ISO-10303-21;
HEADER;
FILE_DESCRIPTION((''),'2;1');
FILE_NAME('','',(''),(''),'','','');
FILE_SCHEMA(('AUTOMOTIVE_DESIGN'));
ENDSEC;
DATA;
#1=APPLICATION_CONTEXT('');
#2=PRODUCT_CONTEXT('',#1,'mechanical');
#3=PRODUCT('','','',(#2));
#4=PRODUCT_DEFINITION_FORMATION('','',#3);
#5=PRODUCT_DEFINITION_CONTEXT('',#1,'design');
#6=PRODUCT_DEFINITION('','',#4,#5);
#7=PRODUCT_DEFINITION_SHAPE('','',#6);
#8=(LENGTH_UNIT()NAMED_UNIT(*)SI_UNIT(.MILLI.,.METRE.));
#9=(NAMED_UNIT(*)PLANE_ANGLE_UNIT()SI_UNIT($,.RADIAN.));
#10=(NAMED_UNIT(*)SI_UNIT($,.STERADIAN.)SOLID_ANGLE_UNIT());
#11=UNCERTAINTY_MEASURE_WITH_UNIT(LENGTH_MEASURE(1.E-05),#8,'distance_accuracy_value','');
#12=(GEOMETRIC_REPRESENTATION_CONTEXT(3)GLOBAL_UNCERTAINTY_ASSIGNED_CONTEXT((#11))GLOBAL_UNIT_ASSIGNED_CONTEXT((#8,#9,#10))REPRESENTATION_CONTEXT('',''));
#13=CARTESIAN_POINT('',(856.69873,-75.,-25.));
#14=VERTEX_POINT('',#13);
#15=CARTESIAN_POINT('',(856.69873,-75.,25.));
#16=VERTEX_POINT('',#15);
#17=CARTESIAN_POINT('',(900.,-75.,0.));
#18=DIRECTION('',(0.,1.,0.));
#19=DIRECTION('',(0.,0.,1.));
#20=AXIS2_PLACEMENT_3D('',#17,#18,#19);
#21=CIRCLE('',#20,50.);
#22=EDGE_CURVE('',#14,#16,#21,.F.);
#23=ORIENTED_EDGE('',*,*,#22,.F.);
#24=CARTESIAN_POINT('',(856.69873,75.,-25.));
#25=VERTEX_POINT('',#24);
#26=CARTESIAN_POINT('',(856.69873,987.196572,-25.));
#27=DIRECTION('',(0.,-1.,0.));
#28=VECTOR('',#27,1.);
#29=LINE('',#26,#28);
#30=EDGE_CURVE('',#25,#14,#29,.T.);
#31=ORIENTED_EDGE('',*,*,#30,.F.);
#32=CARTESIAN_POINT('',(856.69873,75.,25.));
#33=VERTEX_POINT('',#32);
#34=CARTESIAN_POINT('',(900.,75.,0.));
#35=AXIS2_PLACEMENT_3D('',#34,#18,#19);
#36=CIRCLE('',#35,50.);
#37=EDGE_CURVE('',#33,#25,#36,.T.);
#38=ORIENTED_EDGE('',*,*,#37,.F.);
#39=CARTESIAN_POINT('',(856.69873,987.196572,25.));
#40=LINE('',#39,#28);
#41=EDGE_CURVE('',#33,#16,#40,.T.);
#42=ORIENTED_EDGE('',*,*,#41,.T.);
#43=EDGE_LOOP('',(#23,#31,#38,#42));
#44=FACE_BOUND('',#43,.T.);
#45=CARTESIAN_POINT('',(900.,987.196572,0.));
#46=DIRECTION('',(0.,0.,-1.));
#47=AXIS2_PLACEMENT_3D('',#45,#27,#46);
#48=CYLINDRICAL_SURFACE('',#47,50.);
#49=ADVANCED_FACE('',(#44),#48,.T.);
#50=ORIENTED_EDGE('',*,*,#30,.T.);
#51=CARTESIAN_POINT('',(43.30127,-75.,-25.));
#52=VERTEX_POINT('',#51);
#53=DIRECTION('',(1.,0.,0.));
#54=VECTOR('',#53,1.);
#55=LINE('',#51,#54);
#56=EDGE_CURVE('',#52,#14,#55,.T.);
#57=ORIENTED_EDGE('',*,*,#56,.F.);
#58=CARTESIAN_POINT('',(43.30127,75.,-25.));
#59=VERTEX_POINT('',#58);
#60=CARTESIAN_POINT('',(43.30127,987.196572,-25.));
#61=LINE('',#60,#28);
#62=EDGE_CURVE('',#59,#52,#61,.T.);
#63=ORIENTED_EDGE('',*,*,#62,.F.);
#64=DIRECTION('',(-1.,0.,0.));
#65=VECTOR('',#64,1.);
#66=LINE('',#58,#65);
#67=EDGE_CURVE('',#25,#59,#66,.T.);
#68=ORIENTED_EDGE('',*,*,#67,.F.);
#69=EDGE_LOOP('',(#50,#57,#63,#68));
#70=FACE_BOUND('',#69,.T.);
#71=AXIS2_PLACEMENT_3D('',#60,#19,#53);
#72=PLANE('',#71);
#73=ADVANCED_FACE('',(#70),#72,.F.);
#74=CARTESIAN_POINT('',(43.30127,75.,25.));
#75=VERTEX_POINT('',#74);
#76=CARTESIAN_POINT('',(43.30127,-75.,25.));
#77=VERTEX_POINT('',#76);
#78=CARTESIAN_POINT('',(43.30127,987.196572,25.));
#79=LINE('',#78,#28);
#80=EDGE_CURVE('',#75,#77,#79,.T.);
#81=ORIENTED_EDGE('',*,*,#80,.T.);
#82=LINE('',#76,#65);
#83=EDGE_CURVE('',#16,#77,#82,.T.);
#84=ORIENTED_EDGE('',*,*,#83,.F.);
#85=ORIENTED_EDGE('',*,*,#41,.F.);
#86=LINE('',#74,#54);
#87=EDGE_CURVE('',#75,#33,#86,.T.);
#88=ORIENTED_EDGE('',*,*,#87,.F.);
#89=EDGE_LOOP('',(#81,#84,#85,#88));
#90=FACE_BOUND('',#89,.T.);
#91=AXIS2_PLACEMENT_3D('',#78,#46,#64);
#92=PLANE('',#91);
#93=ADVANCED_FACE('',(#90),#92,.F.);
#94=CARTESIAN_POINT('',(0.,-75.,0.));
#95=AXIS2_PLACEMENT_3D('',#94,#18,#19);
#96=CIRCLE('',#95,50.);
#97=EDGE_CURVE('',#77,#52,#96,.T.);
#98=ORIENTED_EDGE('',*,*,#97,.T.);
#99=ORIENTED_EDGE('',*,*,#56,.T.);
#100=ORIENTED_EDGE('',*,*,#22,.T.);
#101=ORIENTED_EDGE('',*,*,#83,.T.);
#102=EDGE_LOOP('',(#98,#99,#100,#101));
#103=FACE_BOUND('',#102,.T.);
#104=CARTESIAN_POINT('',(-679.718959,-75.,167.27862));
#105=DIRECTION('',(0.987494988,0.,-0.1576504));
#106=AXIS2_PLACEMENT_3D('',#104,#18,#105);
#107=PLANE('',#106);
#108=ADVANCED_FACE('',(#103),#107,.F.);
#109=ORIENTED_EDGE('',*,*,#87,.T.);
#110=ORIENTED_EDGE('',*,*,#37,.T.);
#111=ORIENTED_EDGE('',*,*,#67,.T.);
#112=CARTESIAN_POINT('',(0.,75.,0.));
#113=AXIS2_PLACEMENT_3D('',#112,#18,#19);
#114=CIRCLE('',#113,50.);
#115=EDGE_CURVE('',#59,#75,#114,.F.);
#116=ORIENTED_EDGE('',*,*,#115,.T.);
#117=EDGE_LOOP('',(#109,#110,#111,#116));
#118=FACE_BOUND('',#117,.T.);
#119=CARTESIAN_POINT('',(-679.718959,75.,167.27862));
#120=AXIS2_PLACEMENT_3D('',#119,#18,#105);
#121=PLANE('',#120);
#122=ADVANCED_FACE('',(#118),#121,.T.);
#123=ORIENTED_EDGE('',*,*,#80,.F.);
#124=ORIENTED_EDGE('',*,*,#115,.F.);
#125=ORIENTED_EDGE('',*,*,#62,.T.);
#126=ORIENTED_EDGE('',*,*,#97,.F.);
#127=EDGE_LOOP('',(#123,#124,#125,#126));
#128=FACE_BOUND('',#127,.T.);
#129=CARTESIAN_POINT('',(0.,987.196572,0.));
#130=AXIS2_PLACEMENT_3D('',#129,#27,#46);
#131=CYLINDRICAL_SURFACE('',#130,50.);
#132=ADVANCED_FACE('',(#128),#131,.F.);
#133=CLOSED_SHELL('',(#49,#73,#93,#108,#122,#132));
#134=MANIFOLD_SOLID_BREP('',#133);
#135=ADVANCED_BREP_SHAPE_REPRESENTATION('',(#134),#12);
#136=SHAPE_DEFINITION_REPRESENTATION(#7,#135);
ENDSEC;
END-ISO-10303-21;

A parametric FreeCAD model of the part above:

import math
import FreeCAD as App
import Part
import Sketcher
from FreeCAD import Vector

doc = App.newDocument("Part")
body = doc.addObject("PartDesign::Body", "Body")

sketch1 = doc.addObject("Sketcher::SketchObject", "Sketch")
body.addObject(sketch1)
sketch1.AttachmentSupport = (doc.XZ_Plane, [""])
sketch1.MapMode = "FlatFace"
sketch1.addGeometry([
    Part.LineSegment(Vector(43, 25, 0), Vector(857, 25, 0)),
    Part.ArcOfCircle(Part.Circle(Vector(900, 0, 0), Vector(0, 0, 1), 50), math.radians(-150), math.radians(150)),
    Part.LineSegment(Vector(857, -25, 0), Vector(43, -25, 0)),
    Part.ArcOfCircle(Part.Circle(Vector(0, 0, 0), Vector(0, 0, 1), 50), math.radians(-30), math.radians(30)),
], False)
sketch1.addConstraint([
    Sketcher.Constraint("Coincident", 0, 2, 1, 2),
    Sketcher.Constraint("Coincident", 1, 1, 2, 1),
    Sketcher.Constraint("Coincident", 2, 2, 3, 1),
    Sketcher.Constraint("Coincident", 3, 2, 0, 1),
    Sketcher.Constraint("Horizontal", 0),
    Sketcher.Constraint("Horizontal", 2),
    Sketcher.Constraint("Coincident", 3, 3, -1, 1),
    Sketcher.Constraint("Equal", 1, 3),
    Sketcher.Constraint("Symmetric", 0, 2, 1, 1, -1),
    Sketcher.Constraint("Radius", 1, 50.0),
    Sketcher.Constraint("DistanceX", -1, 1, 1, 3, 900.0),
    Sketcher.Constraint("DistanceY", -1, 1, 0, 2, 25.0),
])
pad1 = doc.addObject("PartDesign::Pad", "Pad")
body.addObject(pad1)
pad1.Profile = sketch1
pad1.Type = "TwoLengths"
pad1.Length = 75
pad1.Length2 = 75
pad1.Reversed = True

doc.recompute()
